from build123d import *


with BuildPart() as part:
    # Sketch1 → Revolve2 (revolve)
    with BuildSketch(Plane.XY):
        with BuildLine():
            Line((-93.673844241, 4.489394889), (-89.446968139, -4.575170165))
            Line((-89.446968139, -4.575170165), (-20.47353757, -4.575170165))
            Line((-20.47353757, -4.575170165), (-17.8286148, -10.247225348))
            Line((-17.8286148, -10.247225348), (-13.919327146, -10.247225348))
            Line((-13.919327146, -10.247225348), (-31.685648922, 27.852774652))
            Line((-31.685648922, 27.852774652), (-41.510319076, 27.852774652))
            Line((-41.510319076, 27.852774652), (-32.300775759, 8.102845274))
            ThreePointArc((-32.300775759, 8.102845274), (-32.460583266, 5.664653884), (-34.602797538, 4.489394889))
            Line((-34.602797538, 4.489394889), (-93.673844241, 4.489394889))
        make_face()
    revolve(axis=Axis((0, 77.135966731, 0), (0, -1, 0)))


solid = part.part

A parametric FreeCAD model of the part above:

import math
import FreeCAD as App
import Part
import Sketcher

V = App.Vector
Q = App.Units.Quantity

doc = App.newDocument("Part")
body = doc.addObject("PartDesign::Body", "Body")

# Sketch on XY plane
sketch1 = doc.addObject("Sketcher::SketchObject", "Sketch")
body.addObject(sketch1)
sketch1.AttachmentSupport = (doc.XY_Plane, [""])
sketch1.MapMode = "FlatFace"
sketch1.addGeometry(Part.LineSegment(V(-93.7, 4.5, 0), V(-89.4, -4.6, 0)), False)
sketch1.addGeometry(Part.LineSegment(V(-89.4, -4.6, 0), V(-20.5, -4.6, 0)), False)
sketch1.addGeometry(Part.LineSegment(V(-20.5, -4.6, 0), V(-17.8, -10.2, 0)), False)
sketch1.addGeometry(Part.LineSegment(V(-17.8, -10.2, 0), V(-13.9, -10.2, 0)), False)
sketch1.addGeometry(Part.LineSegment(V(-13.9, -10.2, 0), V(-31.7, 27.9, 0)), False)
sketch1.addGeometry(Part.LineSegment(V(-31.7, 27.9, 0), V(-41.5, 27.9, 0)), False)
sketch1.addGeometry(Part.LineSegment(V(-41.5, 27.9, 0), V(-32.3, 8.1, 0)), False)
sketch1.addGeometry(Part.ArcOfCircle(Part.Circle(V(-34.6, 7, 0), V(0, 0, 1), 2.5), math.radians(-90), math.radians(25)), False)
sketch1.addGeometry(Part.LineSegment(V(-34.6, 4.5, 0), V(-93.7, 4.5, 0)), False)
sketch1.addConstraint(Sketcher.Constraint("Coincident", 0, 2, 1, 1))
sketch1.addConstraint(Sketcher.Constraint("Coincident", 1, 2, 2, 1))
sketch1.addConstraint(Sketcher.Constraint("Coincident", 2, 2, 3, 1))
sketch1.addConstraint(Sketcher.Constraint("Coincident", 3, 2, 4, 1))
sketch1.addConstraint(Sketcher.Constraint("Coincident", 4, 2, 5, 1))
sketch1.addConstraint(Sketcher.Constraint("Coincident", 5, 2, 6, 1))
sketch1.addConstraint(Sketcher.Constraint("Tangent", 6, 2, 7, 2))
sketch1.addConstraint(Sketcher.Constraint("Tangent", 7, 1, 8, 1))
sketch1.addConstraint(Sketcher.Constraint("Coincident", 8, 2, 0, 1))
sketch1.addConstraint(Sketcher.Constraint("Horizontal", 1))
sketch1.addConstraint(Sketcher.Constraint("Horizontal", 3))
sketch1.addConstraint(Sketcher.Constraint("Horizontal", 5))
sketch1.addConstraint(Sketcher.Constraint("Horizontal", 8))
sketch1.addConstraint(Sketcher.Constraint("Parallel", 0, 2))
sketch1.addConstraint(Sketcher.Constraint("Parallel", 2, 4))
sketch1.addConstraint(Sketcher.Constraint("Parallel", 4, 6))
sketch1.addConstraint(Sketcher.Constraint("Radius", 7, Q("0.1 in")))
sketch1.addConstraint(Sketcher.Constraint("Angle", 0, Q("-65 deg")))
sketch1.addConstraint(Sketcher.Constraint("DistanceY", 2, 2, 4, 2, Q("1.5 in")))
sketch1.addConstraint(Sketcher.Constraint("DistanceX", 1, 1, 1, 2, 68.973431))
sketch1.addConstraint(Sketcher.Constraint("DistanceX", 5, 2, 5, 1, 9.82467))
sketch1.addConstraint(Sketcher.Constraint("Distance", 0, 10.001641))
sketch1.addConstraint(Sketcher.Constraint("Distance", 2, 6.25842))
sketch1.addConstraint(Sketcher.Constraint("DistanceX", 3, 1, 3, 2, 3.909288))
sketch1.addConstraint(Sketcher.Constraint("DistanceX", 0, 2, -1, 1, 89.446968))
sketch1.addConstraint(Sketcher.Constraint("DistanceY", 0, 2, -1, 1, 4.57517))
revolution = doc.addObject("PartDesign::Revolution", "Revolution")
body.addObject(revolution)
revolution.Profile = sketch1
revolution.ReferenceAxis = (sketch1, ["V_Axis"])
revolution.Angle = 360

doc.recompute()
